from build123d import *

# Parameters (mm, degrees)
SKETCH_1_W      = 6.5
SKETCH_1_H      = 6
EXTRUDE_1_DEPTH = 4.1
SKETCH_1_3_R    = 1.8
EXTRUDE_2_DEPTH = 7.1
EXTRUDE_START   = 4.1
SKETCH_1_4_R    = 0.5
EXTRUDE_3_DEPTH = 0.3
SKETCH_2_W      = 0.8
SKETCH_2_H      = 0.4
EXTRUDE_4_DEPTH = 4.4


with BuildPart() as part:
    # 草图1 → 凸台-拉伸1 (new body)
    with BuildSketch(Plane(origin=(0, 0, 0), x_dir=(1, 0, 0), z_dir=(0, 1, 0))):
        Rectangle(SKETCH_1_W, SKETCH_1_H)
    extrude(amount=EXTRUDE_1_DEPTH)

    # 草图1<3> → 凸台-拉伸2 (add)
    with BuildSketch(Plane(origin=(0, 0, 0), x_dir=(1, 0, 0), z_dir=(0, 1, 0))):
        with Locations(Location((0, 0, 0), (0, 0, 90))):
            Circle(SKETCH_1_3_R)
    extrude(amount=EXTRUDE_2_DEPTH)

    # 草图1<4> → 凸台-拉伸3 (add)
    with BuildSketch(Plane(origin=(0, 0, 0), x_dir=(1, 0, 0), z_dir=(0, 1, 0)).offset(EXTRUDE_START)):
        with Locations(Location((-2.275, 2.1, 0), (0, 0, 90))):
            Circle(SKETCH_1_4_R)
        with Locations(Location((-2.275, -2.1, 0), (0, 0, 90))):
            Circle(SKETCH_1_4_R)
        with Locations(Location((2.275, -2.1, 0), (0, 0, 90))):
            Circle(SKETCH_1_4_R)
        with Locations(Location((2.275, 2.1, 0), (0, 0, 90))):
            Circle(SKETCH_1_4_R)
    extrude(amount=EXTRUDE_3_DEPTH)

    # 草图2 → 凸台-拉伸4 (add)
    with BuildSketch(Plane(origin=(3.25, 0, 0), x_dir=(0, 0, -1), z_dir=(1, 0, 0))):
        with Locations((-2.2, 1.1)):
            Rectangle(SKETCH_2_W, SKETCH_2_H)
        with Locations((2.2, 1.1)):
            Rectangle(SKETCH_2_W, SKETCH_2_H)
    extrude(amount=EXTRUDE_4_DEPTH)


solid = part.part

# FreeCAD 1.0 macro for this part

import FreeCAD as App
import Part
import Sketcher


def add_polygon(sketch, points):
    """Adds a closed chain of lines whose ends are joined by coincident constraints."""
    first, n = sketch.GeometryCount, len(points)
    for a, b in zip(points, points[1:] + points[:1]):
        sketch.addGeometry(Part.LineSegment(App.Vector(*a, 0), App.Vector(*b, 0)), False)
    for i in range(n):
        sketch.addConstraint(Sketcher.Constraint("Coincident", first + i, 2, first + (i + 1) % n, 1))

doc = App.newDocument("Part")
body = doc.addObject("PartDesign::Body", "Body")

sketch1 = body.newObject("Sketcher::SketchObject", "Sketch")
sketch1.AttachmentSupport = (doc.getObject("XZ_Plane"), [""])
sketch1.MapMode = "FlatFace"
add_polygon(sketch1, [(-3, -3), (-3, 3), (3, 3), (3, -3)])
sketch1.addConstraint([
    Sketcher.Constraint("Vertical", 0),
    Sketcher.Constraint("Horizontal", 1),
    Sketcher.Constraint("Vertical", 2),
    Sketcher.Constraint("Horizontal", 3),
    Sketcher.Constraint("Symmetric", 0, 2, 2, 2, -1, 1),
    Sketcher.Constraint("DistanceY", 0, 1, 0, 2, 6.0),
    Sketcher.Constraint("DistanceX", 1, 1, 1, 2, 6.5),
])
pad1 = body.newObject("PartDesign::Pad", "Pad")
pad1.Profile = sketch1
pad1.Length = 4.1
pad1.Reversed = True

sketch2 = body.newObject("Sketcher::SketchObject", "Sketch001")
sketch2.AttachmentSupport = (doc.getObject("XZ_Plane"), [""])
sketch2.MapMode = "FlatFace"
sketch2.addGeometry(Part.Circle(App.Vector(0, 0, 0), App.Vector(0, 0, 1), 1.8), False)
sketch2.addConstraint([
    Sketcher.Constraint("Coincident", 0, 3, -1, 1),
    Sketcher.Constraint("Diameter", 0, 3.6),
])
pad2 = body.newObject("PartDesign::Pad", "Pad001")
pad2.Profile = sketch2
pad2.Length = 7.1
pad2.Reversed = True

sketch3 = body.newObject("Sketcher::SketchObject", "Sketch002")
sketch3.AttachmentSupport = (doc.getObject("XZ_Plane"), [""])
sketch3.MapMode = "FlatFace"
sketch3.AttachmentOffset = App.Placement(App.Vector(0, 0, -4.1), App.Rotation())
sketch3.addGeometry([
    Part.Circle(App.Vector(-2.3, -2.1, 0), App.Vector(0, 0, 1), 0.5),
    Part.Circle(App.Vector(-2.3, 2.1, 0), App.Vector(0, 0, 1), 0.5),
    Part.Circle(App.Vector(2.3, 2.1, 0), App.Vector(0, 0, 1), 0.5),
    Part.Circle(App.Vector(2.3, -2.1, 0), App.Vector(0, 0, 1), 0.5),
], False)
sketch3.addConstraint([
    Sketcher.Constraint("Equal", 0, 1),
    Sketcher.Constraint("Equal", 1, 2),
    Sketcher.Constraint("Equal", 2, 3),
    Sketcher.Constraint("Symmetric", 0, 3, 2, 3, -1, 1),
    Sketcher.Constraint("Symmetric", 1, 3, 3, 3, -1, 1),
    Sketcher.Constraint("Symmetric", 1, 3, 2, 3, -2),
    Sketcher.Constraint("Diameter", 0, 1.0),
    Sketcher.Constraint("DistanceY", 0, 3, -1, 1, 2.1),
    Sketcher.Constraint("DistanceX", 1, 3, 2, 3, 4.55),
])
pad3 = body.newObject("PartDesign::Pad", "Pad002")
pad3.Profile = sketch3
pad3.Length = 0.3
pad3.Reversed = True

sketch4 = body.newObject("Sketcher::SketchObject", "Sketch003")
sketch4.AttachmentSupport = (doc.getObject("YZ_Plane"), [""])
sketch4.MapMode = "FlatFace"
sketch4.AttachmentOffset = App.Placement(App.Vector(0, 0, 3.25), App.Rotation())
add_polygon(sketch4, [(1.3, 2.6), (0.9, 2.6), (0.9, 1.8), (1.3, 1.8)])
add_polygon(sketch4, [(1.3, -1.8), (0.9, -1.8), (0.9, -2.6), (1.3, -2.6)])
sketch4.addConstraint([
    Sketcher.Constraint("Horizontal", 0),
    Sketcher.Constraint("Vertical", 1),
    Sketcher.Constraint("Horizontal", 2),
    Sketcher.Constraint("Vertical", 3),
    Sketcher.Constraint("Horizontal", 4),
    Sketcher.Constraint("Vertical", 5),
    Sketcher.Constraint("Horizontal", 6),
    Sketcher.Constraint("Vertical", 7),
    Sketcher.Constraint("Symmetric", 1, 2, 4, 2, -1),
    Sketcher.Constraint("Symmetric", 3, 2, 6, 2, -1),
    Sketcher.Constraint("DistanceX", 0, 2, 0, 1, 0.4),
    Sketcher.Constraint("DistanceY", 1, 2, 1, 1, 0.8),
    Sketcher.Constraint("DistanceX", -1, 1, 0, 2, 0.9),
    Sketcher.Constraint("DistanceY", -1, 1, 0, 2, 2.6),
])
pad4 = body.newObject("PartDesign::Pad", "Pad003")
pad4.Profile = sketch4
pad4.Length = 4.4

doc.recompute()
